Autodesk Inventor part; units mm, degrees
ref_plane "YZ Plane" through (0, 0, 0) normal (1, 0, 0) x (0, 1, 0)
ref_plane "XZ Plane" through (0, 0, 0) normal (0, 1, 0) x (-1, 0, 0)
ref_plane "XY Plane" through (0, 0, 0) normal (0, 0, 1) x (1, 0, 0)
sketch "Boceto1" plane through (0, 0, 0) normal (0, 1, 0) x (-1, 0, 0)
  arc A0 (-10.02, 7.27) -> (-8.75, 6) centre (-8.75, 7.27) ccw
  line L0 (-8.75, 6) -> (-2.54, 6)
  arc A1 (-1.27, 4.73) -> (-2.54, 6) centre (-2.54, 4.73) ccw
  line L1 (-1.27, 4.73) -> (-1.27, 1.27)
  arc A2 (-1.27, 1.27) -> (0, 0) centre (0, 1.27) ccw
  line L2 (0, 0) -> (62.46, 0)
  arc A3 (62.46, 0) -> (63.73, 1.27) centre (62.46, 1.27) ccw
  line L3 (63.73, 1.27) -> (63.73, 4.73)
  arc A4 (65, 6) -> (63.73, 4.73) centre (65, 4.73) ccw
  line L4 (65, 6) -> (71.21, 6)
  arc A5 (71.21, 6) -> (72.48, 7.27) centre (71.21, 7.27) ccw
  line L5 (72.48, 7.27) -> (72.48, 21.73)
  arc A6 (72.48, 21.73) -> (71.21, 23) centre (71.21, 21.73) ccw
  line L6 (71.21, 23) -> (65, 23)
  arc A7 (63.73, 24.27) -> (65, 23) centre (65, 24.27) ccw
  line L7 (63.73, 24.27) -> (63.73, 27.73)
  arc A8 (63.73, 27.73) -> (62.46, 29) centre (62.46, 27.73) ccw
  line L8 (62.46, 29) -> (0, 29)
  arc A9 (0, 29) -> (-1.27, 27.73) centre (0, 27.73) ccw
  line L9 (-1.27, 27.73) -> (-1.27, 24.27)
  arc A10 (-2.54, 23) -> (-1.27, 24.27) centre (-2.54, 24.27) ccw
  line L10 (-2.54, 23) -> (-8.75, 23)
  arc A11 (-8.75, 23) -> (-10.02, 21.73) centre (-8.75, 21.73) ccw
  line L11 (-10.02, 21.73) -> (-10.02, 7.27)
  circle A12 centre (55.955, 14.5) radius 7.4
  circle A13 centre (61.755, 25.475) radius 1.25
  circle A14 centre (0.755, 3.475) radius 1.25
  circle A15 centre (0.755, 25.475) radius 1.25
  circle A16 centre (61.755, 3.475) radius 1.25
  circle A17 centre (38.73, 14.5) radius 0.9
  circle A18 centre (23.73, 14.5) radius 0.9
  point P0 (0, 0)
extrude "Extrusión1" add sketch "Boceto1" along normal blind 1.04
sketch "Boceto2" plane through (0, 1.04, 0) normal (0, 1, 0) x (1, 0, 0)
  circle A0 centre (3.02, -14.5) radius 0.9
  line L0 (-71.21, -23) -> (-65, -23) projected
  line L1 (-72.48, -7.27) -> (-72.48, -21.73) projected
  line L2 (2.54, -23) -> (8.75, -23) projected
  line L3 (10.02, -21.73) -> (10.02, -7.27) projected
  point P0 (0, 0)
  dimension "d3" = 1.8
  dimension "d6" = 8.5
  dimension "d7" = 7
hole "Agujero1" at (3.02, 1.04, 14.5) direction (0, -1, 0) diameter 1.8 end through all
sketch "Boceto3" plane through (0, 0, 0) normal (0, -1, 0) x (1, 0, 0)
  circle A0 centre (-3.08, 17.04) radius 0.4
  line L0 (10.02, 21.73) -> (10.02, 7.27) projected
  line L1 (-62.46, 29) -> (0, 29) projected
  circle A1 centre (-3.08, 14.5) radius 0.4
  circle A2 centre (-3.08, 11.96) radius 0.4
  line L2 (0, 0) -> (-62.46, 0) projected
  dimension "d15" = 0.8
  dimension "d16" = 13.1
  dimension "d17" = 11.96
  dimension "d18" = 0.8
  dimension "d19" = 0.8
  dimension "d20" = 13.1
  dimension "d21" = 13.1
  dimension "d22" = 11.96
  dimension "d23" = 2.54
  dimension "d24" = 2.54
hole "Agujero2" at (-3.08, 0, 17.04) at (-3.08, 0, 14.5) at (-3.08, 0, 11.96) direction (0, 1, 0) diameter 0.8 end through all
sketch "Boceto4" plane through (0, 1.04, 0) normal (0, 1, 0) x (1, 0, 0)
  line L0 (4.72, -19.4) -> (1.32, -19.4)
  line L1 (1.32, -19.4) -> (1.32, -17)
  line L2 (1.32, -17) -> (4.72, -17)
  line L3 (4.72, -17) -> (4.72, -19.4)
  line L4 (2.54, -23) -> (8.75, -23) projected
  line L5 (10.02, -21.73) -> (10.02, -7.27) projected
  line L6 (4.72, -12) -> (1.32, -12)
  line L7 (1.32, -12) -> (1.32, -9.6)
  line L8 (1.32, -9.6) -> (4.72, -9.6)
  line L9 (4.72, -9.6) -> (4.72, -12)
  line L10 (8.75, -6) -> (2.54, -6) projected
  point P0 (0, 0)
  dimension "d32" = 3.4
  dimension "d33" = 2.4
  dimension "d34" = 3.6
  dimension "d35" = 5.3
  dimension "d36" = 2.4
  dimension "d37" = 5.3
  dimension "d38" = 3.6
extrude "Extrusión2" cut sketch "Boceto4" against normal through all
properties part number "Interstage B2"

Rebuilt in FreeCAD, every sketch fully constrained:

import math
import FreeCAD as App
import Part
import Sketcher
from FreeCAD import Vector

doc = App.newDocument("Part")
body = doc.addObject("PartDesign::Body", "Body")

# Sketch on XZ plane
sketch1 = body.newObject("Sketcher::SketchObject", "Sketch")
sketch1.AttachmentSupport = (doc.getObject("XZ_Plane"), [""])
sketch1.MapMode = "FlatFace"
sketch1.addGeometry(Part.LineSegment(Vector(10, 21.7, 0), Vector(10, 7.3, 0)), False)
sketch1.addGeometry(Part.ArcOfCircle(Part.Circle(Vector(8.8, 7.3, 0), Vector(0, 0, 1), 1.3), math.radians(-90), math.radians(0)), False)
sketch1.addGeometry(Part.LineSegment(Vector(8.8, 6, 0), Vector(2.5, 6, 0)), False)
sketch1.addGeometry(Part.ArcOfCircle(Part.Circle(Vector(2.5, 4.7, 0), Vector(0, 0, 1), 1.3), math.radians(90), math.radians(180)), False)
sketch1.addGeometry(Part.LineSegment(Vector(1.3, 4.7, 0), Vector(1.3, 1.3, 0)), False)
sketch1.addGeometry(Part.ArcOfCircle(Part.Circle(Vector(0, 1.3, 0), Vector(0, 0, 1), 1.3), math.radians(-90), math.radians(0)), False)
sketch1.addGeometry(Part.LineSegment(Vector(0, 0, 0), Vector(-62.5, 0, 0)), False)
sketch1.addGeometry(Part.ArcOfCircle(Part.Circle(Vector(-62.5, 1.3, 0), Vector(0, 0, 1), 1.3), math.radians(180), math.radians(270)), False)
sketch1.addGeometry(Part.LineSegment(Vector(-63.7, 1.3, 0), Vector(-63.7, 4.7, 0)), False)
sketch1.addGeometry(Part.ArcOfCircle(Part.Circle(Vector(-65, 4.7, 0), Vector(0, 0, 1), 1.3), math.radians(0), math.radians(90)), False)
sketch1.addGeometry(Part.LineSegment(Vector(-65, 6, 0), Vector(-71.2, 6, 0)), False)
sketch1.addGeometry(Part.ArcOfCircle(Part.Circle(Vector(-71.2, 7.3, 0), Vector(0, 0, 1), 1.3), math.radians(180), math.radians(270)), False)
sketch1.addGeometry(Part.LineSegment(Vector(-72.5, 7.3, 0), Vector(-72.5, 21.7, 0)), False)
sketch1.addGeometry(Part.ArcOfCircle(Part.Circle(Vector(-71.2, 21.7, 0), Vector(0, 0, 1), 1.3), math.radians(90), math.radians(180)), False)
sketch1.addGeometry(Part.LineSegment(Vector(-71.2, 23, 0), Vector(-65, 23, 0)), False)
sketch1.addGeometry(Part.ArcOfCircle(Part.Circle(Vector(-65, 24.3, 0), Vector(0, 0, 1), 1.3), math.radians(-90), math.radians(0)), False)
sketch1.addGeometry(Part.LineSegment(Vector(-63.7, 24.3, 0), Vector(-63.7, 27.7, 0)), False)
sketch1.addGeometry(Part.ArcOfCircle(Part.Circle(Vector(-62.5, 27.7, 0), Vector(0, 0, 1), 1.3), math.radians(90), math.radians(180)), False)
sketch1.addGeometry(Part.LineSegment(Vector(-62.5, 29, 0), Vector(0, 29, 0)), False)
sketch1.addGeometry(Part.ArcOfCircle(Part.Circle(Vector(0, 27.7, 0), Vector(0, 0, 1), 1.3), math.radians(0), math.radians(90)), False)
sketch1.addGeometry(Part.LineSegment(Vector(1.3, 27.7, 0), Vector(1.3, 24.3, 0)), False)
sketch1.addGeometry(Part.ArcOfCircle(Part.Circle(Vector(2.5, 24.3, 0), Vector(0, 0, 1), 1.3), math.radians(180), math.radians(270)), False)
sketch1.addGeometry(Part.LineSegment(Vector(2.5, 23, 0), Vector(8.8, 23, 0)), False)
sketch1.addGeometry(Part.ArcOfCircle(Part.Circle(Vector(8.8, 21.7, 0), Vector(0, 0, 1), 1.3), math.radians(0), math.radians(90)), False)
sketch1.addGeometry(Part.Circle(Vector(-0.8, 3.5, 0), Vector(0, 0, 1), 1.2), False)
sketch1.addGeometry(Part.Circle(Vector(-61.8, 3.5, 0), Vector(0, 0, 1), 1.2), False)
sketch1.addGeometry(Part.Circle(Vector(-23.7, 14.5, 0), Vector(0, 0, 1), 0.9), False)
sketch1.addGeometry(Part.Circle(Vector(-0.8, 25.5, 0), Vector(0, 0, 1), 1.2), False)
sketch1.addGeometry(Part.Circle(Vector(-38.7, 14.5, 0), Vector(0, 0, 1), 0.9), False)
sketch1.addGeometry(Part.Circle(Vector(-56, 14.5, 0), Vector(0, 0, 1), 7.4), False)
sketch1.addGeometry(Part.Circle(Vector(-61.8, 25.5, 0), Vector(0, 0, 1), 1.2), False)
sketch1.addConstraint(Sketcher.Constraint("Tangent", 0, 2, 1, 2))
sketch1.addConstraint(Sketcher.Constraint("Tangent", 1, 1, 2, 1))
sketch1.addConstraint(Sketcher.Constraint("Tangent", 2, 2, 3, 1))
sketch1.addConstraint(Sketcher.Constraint("Tangent", 3, 2, 4, 1))
sketch1.addConstraint(Sketcher.Constraint("Tangent", 4, 2, 5, 2))
sketch1.addConstraint(Sketcher.Constraint("Tangent", 5, 1, 6, 1))
sketch1.addConstraint(Sketcher.Constraint("Tangent", 6, 2, 7, 2))
sketch1.addConstraint(Sketcher.Constraint("Tangent", 7, 1, 8, 1))
sketch1.addConstraint(Sketcher.Constraint("Tangent", 8, 2, 9, 1))
sketch1.addConstraint(Sketcher.Constraint("Tangent", 9, 2, 10, 1))
sketch1.addConstraint(Sketcher.Constraint("Tangent", 10, 2, 11, 2))
sketch1.addConstraint(Sketcher.Constraint("Tangent", 11, 1, 12, 1))
sketch1.addConstraint(Sketcher.Constraint("Tangent", 12, 2, 13, 2))
sketch1.addConstraint(Sketcher.Constraint("Tangent", 13, 1, 14, 1))
sketch1.addConstraint(Sketcher.Constraint("Tangent", 14, 2, 15, 1))
sketch1.addConstraint(Sketcher.Constraint("Tangent", 15, 2, 16, 1))
sketch1.addConstraint(Sketcher.Constraint("Tangent", 16, 2, 17, 2))
sketch1.addConstraint(Sketcher.Constraint("Tangent", 17, 1, 18, 1))
sketch1.addConstraint(Sketcher.Constraint("Tangent", 18, 2, 19, 2))
sketch1.addConstraint(Sketcher.Constraint("Tangent", 19, 1, 20, 1))
sketch1.addConstraint(Sketcher.Constraint("Tangent", 20, 2, 21, 1))
sketch1.addConstraint(Sketcher.Constraint("Tangent", 21, 2, 22, 1))
sketch1.addConstraint(Sketcher.Constraint("Tangent", 22, 2, 23, 2))
sketch1.addConstraint(Sketcher.Constraint("Tangent", 23, 1, 0, 1))
sketch1.addConstraint(Sketcher.Constraint("Vertical", 0))
sketch1.addConstraint(Sketcher.Constraint("Horizontal", 2))
sketch1.addConstraint(Sketcher.Constraint("Vertical", 4))
sketch1.addConstraint(Sketcher.Constraint("Horizontal", 6))
sketch1.addConstraint(Sketcher.Constraint("Vertical", 8))
sketch1.addConstraint(Sketcher.Constraint("Horizontal", 10))
sketch1.addConstraint(Sketcher.Constraint("Vertical", 12))
sketch1.addConstraint(Sketcher.Constraint("Horizontal", 14))
sketch1.addConstraint(Sketcher.Constraint("Vertical", 16))
sketch1.addConstraint(Sketcher.Constraint("Horizontal", 18))
sketch1.addConstraint(Sketcher.Constraint("Vertical", 20))
sketch1.addConstraint(Sketcher.Constraint("Horizontal", 22))
sketch1.addConstraint(Sketcher.Constraint("Coincident", 5, 1, -1, 1))
sketch1.addConstraint(Sketcher.Constraint("Equal", 1, 3))
sketch1.addConstraint(Sketcher.Constraint("Equal", 3, 5))
sketch1.addConstraint(Sketcher.Constraint("Equal", 5, 7))
sketch1.addConstraint(Sketcher.Constraint("Equal", 7, 9))
sketch1.addConstraint(Sketcher.Constraint("Equal", 9, 11))
sketch1.addConstraint(Sketcher.Constraint("Equal", 11, 13))
sketch1.addConstraint(Sketcher.Constraint("Equal", 13, 15))
sketch1.addConstraint(Sketcher.Constraint("Equal", 15, 17))
sketch1.addConstraint(Sketcher.Constraint("Equal", 17, 19))
sketch1.addConstraint(Sketcher.Constraint("Equal", 19, 21))
sketch1.addConstraint(Sketcher.Constraint("Equal", 21, 23))
sketch1.addConstraint(Sketcher.Constraint("Equal", 24, 25))
sketch1.addConstraint(Sketcher.Constraint("Equal", 25, 27))
sketch1.addConstraint(Sketcher.Constraint("Equal", 26, 28))
sketch1.addConstraint(Sketcher.Constraint("Equal", 27, 30))
sketch1.addConstraint(Sketcher.Constraint("PointOnObject", 19, 3, -2))
sketch1.addConstraint(Sketcher.Constraint("Horizontal", 3, 3, 9, 3))
sketch1.addConstraint(Sketcher.Constraint("Horizontal", 15, 3, 21, 3))
sketch1.addConstraint(Sketcher.Constraint("Horizontal", 24, 3, 25, 3))
sketch1.addConstraint(Sketcher.Constraint("Horizontal", 26, 3, 28, 3))
sketch1.addConstraint(Sketcher.Constraint("Horizontal", 28, 3, 29, 3))
sketch1.addConstraint(Sketcher.Constraint("Horizontal", 27, 3, 30, 3))
sketch1.addConstraint(Sketcher.Constraint("Vertical", 9, 3, 15, 3))
sketch1.addConstraint(Sketcher.Constraint("Vertical", 24, 3, 27, 3))
sketch1.addConstraint(Sketcher.Constraint("Vertical", 25, 3, 30, 3))
sketch1.addConstraint(Sketcher.Constraint("Equal", 2, 10))
sketch1.addConstraint(Sketcher.Constraint("Equal", 8, 16))
sketch1.addConstraint(Sketcher.Constraint("Diameter", 24, 2.5))
sketch1.addConstraint(Sketcher.Constraint("Diameter", 26, 1.8))
sketch1.addConstraint(Sketcher.Constraint("Diameter", 29, 14.8))
sketch1.addConstraint(Sketcher.Constraint("Radius", 1, 1.27))
sketch1.addConstraint(Sketcher.Constraint("DistanceX", 9, 3, -1, 1, 65.0))
sketch1.addConstraint(Sketcher.Constraint("DistanceY", -1, 1, 1, 1, 6.0))
sketch1.addConstraint(Sketcher.Constraint("DistanceY", -1, 1, 13, 1, 23.0))
sketch1.addConstraint(Sketcher.Constraint("DistanceX", 28, 3, 26, 3, 15.0))
sketch1.addConstraint(Sketcher.Constraint("DistanceX", 2, 2, 2, 1, 6.21))
sketch1.addConstraint(Sketcher.Constraint("DistanceY", -1, 1, 26, 3, 14.5))
sketch1.addConstraint(Sketcher.Constraint("DistanceX", 25, 3, 29, 3, 5.8))
sketch1.addConstraint(Sketcher.Constraint("DistanceX", 26, 3, -1, 1, 23.73))
sketch1.addConstraint(Sketcher.Constraint("DistanceX", 24, 3, -1, 1, 0.755))
sketch1.addConstraint(Sketcher.Constraint("DistanceY", -1, 1, 24, 3, 3.475))
sketch1.addConstraint(Sketcher.Constraint("DistanceX", 25, 3, -1, 1, 61.755))
sketch1.addConstraint(Sketcher.Constraint("DistanceY", -1, 1, 27, 3, 25.475))
pad1 = body.newObject("PartDesign::Pad", "Pad")
pad1.Profile = sketch1
pad1.Length = 1.04
pad1.Reversed = True

# Sketch on XZ plane
sketch2 = body.newObject("Sketcher::SketchObject", "Sketch001")
sketch2.AttachmentSupport = (doc.getObject("XZ_Plane"), [""])
sketch2.MapMode = "FlatFace"
sketch2.AttachmentOffset = App.Placement(Vector(0, 0, -1.04), App.Rotation())
sketch2.addGeometry(Part.Circle(Vector(3, 14.5, 0), Vector(0, 0, 1), 0.9), False)
sketch2.addConstraint(Sketcher.Constraint("Diameter", 0, 1.8))
sketch2.addConstraint(Sketcher.Constraint("DistanceY", -1, 1, 0, 3, 14.5))
sketch2.addConstraint(Sketcher.Constraint("DistanceX", -1, 1, 0, 3, 3.02))
doc.recompute()
hole = body.newObject("PartDesign::Hole", "Hole")
hole.Profile = sketch2
hole.ThreadType = "None"
hole.Diameter = 1.8
hole.DepthType = "ThroughAll"
hole.Reversed = True

# Sketch on XZ plane
sketch3 = body.newObject("Sketcher::SketchObject", "Sketch002")
sketch3.AttachmentSupport = (doc.getObject("XZ_Plane"), [""])
sketch3.MapMode = "FlatFace"
sketch3.addGeometry(Part.Circle(Vector(-3.08, 17.04, 0), Vector(0, 0, 1), 0.4), False)
sketch3.addGeometry(Part.Circle(Vector(-3.08, 14.5, 0), Vector(0, 0, 1), 0.4), False)
sketch3.addGeometry(Part.Circle(Vector(-3.08, 11.96, 0), Vector(0, 0, 1), 0.4), False)
sketch3.addConstraint(Sketcher.Constraint("Equal", 0, 1))
sketch3.addConstraint(Sketcher.Constraint("Equal", 1, 2))
sketch3.addConstraint(Sketcher.Constraint("Vertical", 0, 3, 1, 3))
sketch3.addConstraint(Sketcher.Constraint("Vertical", 1, 3, 2, 3))
sketch3.addConstraint(Sketcher.Constraint("Diameter", 0, 0.8))
sketch3.addConstraint(Sketcher.Constraint("DistanceY", -1, 1, 1, 3, 14.5))
sketch3.addConstraint(Sketcher.Constraint("DistanceX", 0, 3, -1, 1, 3.08))
sketch3.addConstraint(Sketcher.Constraint("DistanceY", -1, 1, 0, 3, 17.04))
sketch3.addConstraint(Sketcher.Constraint("DistanceY", -1, 1, 2, 3, 11.96))
doc.recompute()
hole2 = body.newObject("PartDesign::Hole", "Hole001")
hole2.Profile = sketch3
hole2.ThreadType = "None"
hole2.Diameter = 0.8
hole2.DepthType = "ThroughAll"

# Sketch on XZ plane
sketch4 = body.newObject("Sketcher::SketchObject", "Sketch003")
sketch4.AttachmentSupport = (doc.getObject("XZ_Plane"), [""])
sketch4.MapMode = "FlatFace"
sketch4.AttachmentOffset = App.Placement(Vector(0, 0, -1.04), App.Rotation())
sketch4.addGeometry(Part.LineSegment(Vector(1.3, 19.4, 0), Vector(4.7, 19.4, 0)), False)
sketch4.addGeometry(Part.LineSegment(Vector(4.7, 19.4, 0), Vector(4.7, 17, 0)), False)
sketch4.addGeometry(Part.LineSegment(Vector(4.7, 17, 0), Vector(1.3, 17, 0)), False)
sketch4.addGeometry(Part.LineSegment(Vector(1.3, 17, 0), Vector(1.3, 19.4, 0)), False)
sketch4.addGeometry(Part.LineSegment(Vector(1.3, 12, 0), Vector(4.7, 12, 0)), False)
sketch4.addGeometry(Part.LineSegment(Vector(4.7, 12, 0), Vector(4.7, 9.6, 0)), False)
sketch4.addGeometry(Part.LineSegment(Vector(4.7, 9.6, 0), Vector(1.3, 9.6, 0)), False)
sketch4.addGeometry(Part.LineSegment(Vector(1.3, 9.6, 0), Vector(1.3, 12, 0)), False)
sketch4.addConstraint(Sketcher.Constraint("Coincident", 0, 2, 1, 1))
sketch4.addConstraint(Sketcher.Constraint("Coincident", 1, 2, 2, 1))
sketch4.addConstraint(Sketcher.Constraint("Coincident", 2, 2, 3, 1))
sketch4.addConstraint(Sketcher.Constraint("Coincident", 3, 2, 0, 1))
sketch4.addConstraint(Sketcher.Constraint("Coincident", 4, 2, 5, 1))
sketch4.addConstraint(Sketcher.Constraint("Coincident", 5, 2, 6, 1))
sketch4.addConstraint(Sketcher.Constraint("Coincident", 6, 2, 7, 1))
sketch4.addConstraint(Sketcher.Constraint("Coincident", 7, 2, 4, 1))
sketch4.addConstraint(Sketcher.Constraint("Horizontal", 0))
sketch4.addConstraint(Sketcher.Constraint("Vertical", 1))
sketch4.addConstraint(Sketcher.Constraint("Horizontal", 2))
sketch4.addConstraint(Sketcher.Constraint("Vertical", 3))
sketch4.addConstraint(Sketcher.Constraint("Horizontal", 4))
sketch4.addConstraint(Sketcher.Constraint("Vertical", 5))
sketch4.addConstraint(Sketcher.Constraint("Horizontal", 6))
sketch4.addConstraint(Sketcher.Constraint("Vertical", 7))
sketch4.addConstraint(Sketcher.Constraint("Vertical", 1, 2, 4, 2))
sketch4.addConstraint(Sketcher.Constraint("Vertical", 3, 2, 6, 2))
sketch4.addConstraint(Sketcher.Constraint("Equal", 3, 5))
sketch4.addConstraint(Sketcher.Constraint("DistanceX", 0, 1, 0, 2, 3.4))
sketch4.addConstraint(Sketcher.Constraint("DistanceY", 1, 2, 1, 1, 2.4))
sketch4.addConstraint(Sketcher.Constraint("DistanceY", -1, 1, 1, 2, 17.0))
sketch4.addConstraint(Sketcher.Constraint("DistanceY", -1, 1, 4, 2, 12.0))
sketch4.addConstraint(Sketcher.Constraint("DistanceX", -1, 1, 0, 2, 4.72))
pocket1 = body.newObject("PartDesign::Pocket", "Pocket")
pocket1.Profile = sketch4
pocket1.Type = "ThroughAll"
pocket1.Reversed = True

doc.recompute()
